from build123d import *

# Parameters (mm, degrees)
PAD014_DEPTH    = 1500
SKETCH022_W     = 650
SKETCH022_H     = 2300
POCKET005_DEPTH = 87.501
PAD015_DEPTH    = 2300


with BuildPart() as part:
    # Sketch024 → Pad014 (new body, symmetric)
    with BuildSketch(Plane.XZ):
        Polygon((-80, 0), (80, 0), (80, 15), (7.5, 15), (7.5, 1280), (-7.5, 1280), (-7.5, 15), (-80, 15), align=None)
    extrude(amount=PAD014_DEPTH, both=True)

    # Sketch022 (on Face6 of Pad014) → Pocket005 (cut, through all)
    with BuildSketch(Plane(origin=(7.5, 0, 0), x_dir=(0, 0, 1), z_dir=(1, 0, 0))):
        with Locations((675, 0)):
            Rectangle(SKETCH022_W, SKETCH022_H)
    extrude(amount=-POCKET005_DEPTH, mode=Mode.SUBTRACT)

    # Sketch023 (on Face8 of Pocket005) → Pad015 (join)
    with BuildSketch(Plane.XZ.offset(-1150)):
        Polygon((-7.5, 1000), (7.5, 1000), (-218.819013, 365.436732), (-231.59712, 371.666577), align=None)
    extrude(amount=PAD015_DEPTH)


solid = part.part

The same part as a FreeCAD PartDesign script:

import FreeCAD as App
import Part
import Sketcher
from FreeCAD import Vector

doc = App.newDocument("Part")
params = doc.addObject("Spreadsheet::Sheet", "Params")
for row, (alias, value) in enumerate([
    ("sketch1_width", "160 mm"),
    ("sketch1_width2", "15 mm"),
    ("sketch1_height", "1265 mm"),
    ("pad1_length", "3000 mm"),
    ("sketch2_width", "2300 mm"),
    ("sketch2_height", "650 mm"),
    ("sketch3_width", "15 mm"),
    ("sketch3_length", "667.1 mm"),
    ("pad2_length", "2300 mm"),
], start=1):
    params.set(f"A{row}", alias)
    params.set(f"B{row}", "=" + value)
    params.setAlias(f"B{row}", alias)

body = doc.addObject("PartDesign::Body", "Body")

sketch1 = body.newObject("Sketcher::SketchObject", "Sketch")
sketch1.AttachmentSupport = (doc.getObject("XZ_Plane"), [""])
sketch1.MapMode = "FlatFace"
sketch1.addGeometry(Part.LineSegment(Vector(-80, 0, 0), Vector(80, 0, 0)), False)
sketch1.addGeometry(Part.LineSegment(Vector(80, 0, 0), Vector(80, 15, 0)), False)
sketch1.addGeometry(Part.LineSegment(Vector(80, 15, 0), Vector(8, 15, 0)), False)
sketch1.addGeometry(Part.LineSegment(Vector(8, 15, 0), Vector(8, 1280, 0)), False)
sketch1.addGeometry(Part.LineSegment(Vector(8, 1280, 0), Vector(-8, 1280, 0)), False)
sketch1.addGeometry(Part.LineSegment(Vector(-8, 1280, 0), Vector(-8, 15, 0)), False)
sketch1.addGeometry(Part.LineSegment(Vector(-8, 15, 0), Vector(-80, 15, 0)), False)
sketch1.addGeometry(Part.LineSegment(Vector(-80, 15, 0), Vector(-80, 0, 0)), False)
sketch1.addConstraint(Sketcher.Constraint("Coincident", 0, 2, 1, 1))
sketch1.addConstraint(Sketcher.Constraint("Coincident", 1, 2, 2, 1))
sketch1.addConstraint(Sketcher.Constraint("Coincident", 2, 2, 3, 1))
sketch1.addConstraint(Sketcher.Constraint("Coincident", 3, 2, 4, 1))
sketch1.addConstraint(Sketcher.Constraint("Coincident", 4, 2, 5, 1))
sketch1.addConstraint(Sketcher.Constraint("Coincident", 5, 2, 6, 1))
sketch1.addConstraint(Sketcher.Constraint("Coincident", 6, 2, 7, 1))
sketch1.addConstraint(Sketcher.Constraint("Coincident", 7, 2, 0, 1))
sketch1.addConstraint(Sketcher.Constraint("Horizontal", 0))
sketch1.addConstraint(Sketcher.Constraint("Vertical", 1))
sketch1.addConstraint(Sketcher.Constraint("Horizontal", 2))
sketch1.addConstraint(Sketcher.Constraint("Vertical", 3))
sketch1.addConstraint(Sketcher.Constraint("Horizontal", 4))
sketch1.addConstraint(Sketcher.Constraint("Vertical", 5))
sketch1.addConstraint(Sketcher.Constraint("Horizontal", 6))
sketch1.addConstraint(Sketcher.Constraint("Vertical", 7))
sketch1.addConstraint(Sketcher.Constraint("Symmetric", 0, 2, 7, 2, -1, 1))
sketch1.addConstraint(Sketcher.Constraint("Symmetric", 2, 2, 5, 2, -2))
sketch1.addConstraint(Sketcher.Constraint("Equal", 4, 1))
sketch1.addConstraint(Sketcher.Constraint("DistanceX", 0, 1, 0, 2, 160.0))
sketch1.addConstraint(Sketcher.Constraint("DistanceX", 4, 2, 4, 1, 15.0))
sketch1.addConstraint(Sketcher.Constraint("DistanceY", 3, 1, 3, 2, 1265.0))
sketch1.setExpression("Constraints[19]", "Params.sketch1_width")
sketch1.setExpression("Constraints[20]", "Params.sketch1_width2")
sketch1.setExpression("Constraints[21]", "Params.sketch1_height")
pad1 = body.newObject("PartDesign::Pad", "Pad")
pad1.Profile = sketch1
pad1.setExpression("Length", "Params.pad1_length")
pad1.Midplane = True

sketch2 = body.newObject("Sketcher::SketchObject", "Sketch001")
sketch2.AttachmentSupport = (doc.getObject("YZ_Plane"), [""])
sketch2.MapMode = "FlatFace"
sketch2.AttachmentOffset = App.Placement(Vector(0, 0, 7.5), App.Rotation())
sketch2.addGeometry(Part.LineSegment(Vector(-1150, 350, 0), Vector(1150, 350, 0)), False)
sketch2.addGeometry(Part.LineSegment(Vector(1150, 350, 0), Vector(1150, 1000, 0)), False)
sketch2.addGeometry(Part.LineSegment(Vector(1150, 1000, 0), Vector(-1150, 1000, 0)), False)
sketch2.addGeometry(Part.LineSegment(Vector(-1150, 1000, 0), Vector(-1150, 350, 0)), False)
sketch2.addConstraint(Sketcher.Constraint("Coincident", 0, 2, 1, 1))
sketch2.addConstraint(Sketcher.Constraint("Coincident", 1, 2, 2, 1))
sketch2.addConstraint(Sketcher.Constraint("Coincident", 2, 2, 3, 1))
sketch2.addConstraint(Sketcher.Constraint("Coincident", 3, 2, 0, 1))
sketch2.addConstraint(Sketcher.Constraint("Horizontal", 0))
sketch2.addConstraint(Sketcher.Constraint("Vertical", 1))
sketch2.addConstraint(Sketcher.Constraint("Horizontal", 2))
sketch2.addConstraint(Sketcher.Constraint("Vertical", 3))
sketch2.addConstraint(Sketcher.Constraint("DistanceX", 0, 1, 0, 2, 2300.0))
sketch2.addConstraint(Sketcher.Constraint("DistanceY", 1, 1, 1, 2, 650.0))
sketch2.addConstraint(Sketcher.Constraint("DistanceX", -1, 1, 0, 2, 1150.0))
sketch2.addConstraint(Sketcher.Constraint("DistanceY", -1, 1, 0, 2, 350.0))
sketch2.setExpression("Constraints[8]", "Params.sketch2_width")
sketch2.setExpression("Constraints[9]", "Params.sketch2_height")
pocket1 = body.newObject("PartDesign::Pocket", "Pocket")
pocket1.Profile = sketch2
pocket1.Type = "ThroughAll"

sketch3 = body.newObject("Sketcher::SketchObject", "Sketch002")
sketch3.AttachmentSupport = (doc.getObject("XZ_Plane"), [""])
sketch3.MapMode = "FlatFace"
sketch3.AttachmentOffset = App.Placement(Vector(0, 0, -1150), App.Rotation())
sketch3.addGeometry(Part.LineSegment(Vector(7.5, 1000, 0), Vector(-7.5, 1000, 0)), False)
sketch3.addGeometry(Part.LineSegment(Vector(-7.5, 1000, 0), Vector(-231.59712, 371.666577, 0)), False)
sketch3.addGeometry(Part.LineSegment(Vector(-231.59712, 371.666577, 0), Vector(-218.819013, 365.436732, 0)), False)
sketch3.addGeometry(Part.LineSegment(Vector(-218.819013, 365.436732, 0), Vector(7.5, 1000, 0)), False)
sketch3.addConstraint(Sketcher.Constraint("Coincident", 0, 2, 1, 1))
sketch3.addConstraint(Sketcher.Constraint("Coincident", 1, 2, 2, 1))
sketch3.addConstraint(Sketcher.Constraint("Coincident", 2, 2, 3, 1))
sketch3.addConstraint(Sketcher.Constraint("Coincident", 3, 2, 0, 1))
sketch3.addConstraint(Sketcher.Constraint("Horizontal", 0))
sketch3.addConstraint(Sketcher.Constraint("Parallel", 1, 3))
sketch3.addConstraint(Sketcher.Constraint("DistanceX", 0, 2, 0, 1, 15.0))
sketch3.addConstraint(Sketcher.Constraint("DistanceY", -1, 1, 0, 2, 1000.0))
sketch3.addConstraint(Sketcher.Constraint("Distance", 1, 667.1))
sketch3.addConstraint(Sketcher.Constraint("DistanceX", 0, 2, -1, 1, 7.5))
sketch3.addConstraint(Sketcher.Constraint("Distance", 2, 14.215871))
sketch3.addConstraint(Sketcher.Constraint("Distance", 3, 673.71421))
sketch3.setExpression("Constraints[6]", "Params.sketch3_width")
sketch3.setExpression("Constraints[8]", "Params.sketch3_length")
pad2 = body.newObject("PartDesign::Pad", "Pad001")
pad2.Profile = sketch3
pad2.setExpression("Length", "Params.pad2_length")

doc.recompute()
